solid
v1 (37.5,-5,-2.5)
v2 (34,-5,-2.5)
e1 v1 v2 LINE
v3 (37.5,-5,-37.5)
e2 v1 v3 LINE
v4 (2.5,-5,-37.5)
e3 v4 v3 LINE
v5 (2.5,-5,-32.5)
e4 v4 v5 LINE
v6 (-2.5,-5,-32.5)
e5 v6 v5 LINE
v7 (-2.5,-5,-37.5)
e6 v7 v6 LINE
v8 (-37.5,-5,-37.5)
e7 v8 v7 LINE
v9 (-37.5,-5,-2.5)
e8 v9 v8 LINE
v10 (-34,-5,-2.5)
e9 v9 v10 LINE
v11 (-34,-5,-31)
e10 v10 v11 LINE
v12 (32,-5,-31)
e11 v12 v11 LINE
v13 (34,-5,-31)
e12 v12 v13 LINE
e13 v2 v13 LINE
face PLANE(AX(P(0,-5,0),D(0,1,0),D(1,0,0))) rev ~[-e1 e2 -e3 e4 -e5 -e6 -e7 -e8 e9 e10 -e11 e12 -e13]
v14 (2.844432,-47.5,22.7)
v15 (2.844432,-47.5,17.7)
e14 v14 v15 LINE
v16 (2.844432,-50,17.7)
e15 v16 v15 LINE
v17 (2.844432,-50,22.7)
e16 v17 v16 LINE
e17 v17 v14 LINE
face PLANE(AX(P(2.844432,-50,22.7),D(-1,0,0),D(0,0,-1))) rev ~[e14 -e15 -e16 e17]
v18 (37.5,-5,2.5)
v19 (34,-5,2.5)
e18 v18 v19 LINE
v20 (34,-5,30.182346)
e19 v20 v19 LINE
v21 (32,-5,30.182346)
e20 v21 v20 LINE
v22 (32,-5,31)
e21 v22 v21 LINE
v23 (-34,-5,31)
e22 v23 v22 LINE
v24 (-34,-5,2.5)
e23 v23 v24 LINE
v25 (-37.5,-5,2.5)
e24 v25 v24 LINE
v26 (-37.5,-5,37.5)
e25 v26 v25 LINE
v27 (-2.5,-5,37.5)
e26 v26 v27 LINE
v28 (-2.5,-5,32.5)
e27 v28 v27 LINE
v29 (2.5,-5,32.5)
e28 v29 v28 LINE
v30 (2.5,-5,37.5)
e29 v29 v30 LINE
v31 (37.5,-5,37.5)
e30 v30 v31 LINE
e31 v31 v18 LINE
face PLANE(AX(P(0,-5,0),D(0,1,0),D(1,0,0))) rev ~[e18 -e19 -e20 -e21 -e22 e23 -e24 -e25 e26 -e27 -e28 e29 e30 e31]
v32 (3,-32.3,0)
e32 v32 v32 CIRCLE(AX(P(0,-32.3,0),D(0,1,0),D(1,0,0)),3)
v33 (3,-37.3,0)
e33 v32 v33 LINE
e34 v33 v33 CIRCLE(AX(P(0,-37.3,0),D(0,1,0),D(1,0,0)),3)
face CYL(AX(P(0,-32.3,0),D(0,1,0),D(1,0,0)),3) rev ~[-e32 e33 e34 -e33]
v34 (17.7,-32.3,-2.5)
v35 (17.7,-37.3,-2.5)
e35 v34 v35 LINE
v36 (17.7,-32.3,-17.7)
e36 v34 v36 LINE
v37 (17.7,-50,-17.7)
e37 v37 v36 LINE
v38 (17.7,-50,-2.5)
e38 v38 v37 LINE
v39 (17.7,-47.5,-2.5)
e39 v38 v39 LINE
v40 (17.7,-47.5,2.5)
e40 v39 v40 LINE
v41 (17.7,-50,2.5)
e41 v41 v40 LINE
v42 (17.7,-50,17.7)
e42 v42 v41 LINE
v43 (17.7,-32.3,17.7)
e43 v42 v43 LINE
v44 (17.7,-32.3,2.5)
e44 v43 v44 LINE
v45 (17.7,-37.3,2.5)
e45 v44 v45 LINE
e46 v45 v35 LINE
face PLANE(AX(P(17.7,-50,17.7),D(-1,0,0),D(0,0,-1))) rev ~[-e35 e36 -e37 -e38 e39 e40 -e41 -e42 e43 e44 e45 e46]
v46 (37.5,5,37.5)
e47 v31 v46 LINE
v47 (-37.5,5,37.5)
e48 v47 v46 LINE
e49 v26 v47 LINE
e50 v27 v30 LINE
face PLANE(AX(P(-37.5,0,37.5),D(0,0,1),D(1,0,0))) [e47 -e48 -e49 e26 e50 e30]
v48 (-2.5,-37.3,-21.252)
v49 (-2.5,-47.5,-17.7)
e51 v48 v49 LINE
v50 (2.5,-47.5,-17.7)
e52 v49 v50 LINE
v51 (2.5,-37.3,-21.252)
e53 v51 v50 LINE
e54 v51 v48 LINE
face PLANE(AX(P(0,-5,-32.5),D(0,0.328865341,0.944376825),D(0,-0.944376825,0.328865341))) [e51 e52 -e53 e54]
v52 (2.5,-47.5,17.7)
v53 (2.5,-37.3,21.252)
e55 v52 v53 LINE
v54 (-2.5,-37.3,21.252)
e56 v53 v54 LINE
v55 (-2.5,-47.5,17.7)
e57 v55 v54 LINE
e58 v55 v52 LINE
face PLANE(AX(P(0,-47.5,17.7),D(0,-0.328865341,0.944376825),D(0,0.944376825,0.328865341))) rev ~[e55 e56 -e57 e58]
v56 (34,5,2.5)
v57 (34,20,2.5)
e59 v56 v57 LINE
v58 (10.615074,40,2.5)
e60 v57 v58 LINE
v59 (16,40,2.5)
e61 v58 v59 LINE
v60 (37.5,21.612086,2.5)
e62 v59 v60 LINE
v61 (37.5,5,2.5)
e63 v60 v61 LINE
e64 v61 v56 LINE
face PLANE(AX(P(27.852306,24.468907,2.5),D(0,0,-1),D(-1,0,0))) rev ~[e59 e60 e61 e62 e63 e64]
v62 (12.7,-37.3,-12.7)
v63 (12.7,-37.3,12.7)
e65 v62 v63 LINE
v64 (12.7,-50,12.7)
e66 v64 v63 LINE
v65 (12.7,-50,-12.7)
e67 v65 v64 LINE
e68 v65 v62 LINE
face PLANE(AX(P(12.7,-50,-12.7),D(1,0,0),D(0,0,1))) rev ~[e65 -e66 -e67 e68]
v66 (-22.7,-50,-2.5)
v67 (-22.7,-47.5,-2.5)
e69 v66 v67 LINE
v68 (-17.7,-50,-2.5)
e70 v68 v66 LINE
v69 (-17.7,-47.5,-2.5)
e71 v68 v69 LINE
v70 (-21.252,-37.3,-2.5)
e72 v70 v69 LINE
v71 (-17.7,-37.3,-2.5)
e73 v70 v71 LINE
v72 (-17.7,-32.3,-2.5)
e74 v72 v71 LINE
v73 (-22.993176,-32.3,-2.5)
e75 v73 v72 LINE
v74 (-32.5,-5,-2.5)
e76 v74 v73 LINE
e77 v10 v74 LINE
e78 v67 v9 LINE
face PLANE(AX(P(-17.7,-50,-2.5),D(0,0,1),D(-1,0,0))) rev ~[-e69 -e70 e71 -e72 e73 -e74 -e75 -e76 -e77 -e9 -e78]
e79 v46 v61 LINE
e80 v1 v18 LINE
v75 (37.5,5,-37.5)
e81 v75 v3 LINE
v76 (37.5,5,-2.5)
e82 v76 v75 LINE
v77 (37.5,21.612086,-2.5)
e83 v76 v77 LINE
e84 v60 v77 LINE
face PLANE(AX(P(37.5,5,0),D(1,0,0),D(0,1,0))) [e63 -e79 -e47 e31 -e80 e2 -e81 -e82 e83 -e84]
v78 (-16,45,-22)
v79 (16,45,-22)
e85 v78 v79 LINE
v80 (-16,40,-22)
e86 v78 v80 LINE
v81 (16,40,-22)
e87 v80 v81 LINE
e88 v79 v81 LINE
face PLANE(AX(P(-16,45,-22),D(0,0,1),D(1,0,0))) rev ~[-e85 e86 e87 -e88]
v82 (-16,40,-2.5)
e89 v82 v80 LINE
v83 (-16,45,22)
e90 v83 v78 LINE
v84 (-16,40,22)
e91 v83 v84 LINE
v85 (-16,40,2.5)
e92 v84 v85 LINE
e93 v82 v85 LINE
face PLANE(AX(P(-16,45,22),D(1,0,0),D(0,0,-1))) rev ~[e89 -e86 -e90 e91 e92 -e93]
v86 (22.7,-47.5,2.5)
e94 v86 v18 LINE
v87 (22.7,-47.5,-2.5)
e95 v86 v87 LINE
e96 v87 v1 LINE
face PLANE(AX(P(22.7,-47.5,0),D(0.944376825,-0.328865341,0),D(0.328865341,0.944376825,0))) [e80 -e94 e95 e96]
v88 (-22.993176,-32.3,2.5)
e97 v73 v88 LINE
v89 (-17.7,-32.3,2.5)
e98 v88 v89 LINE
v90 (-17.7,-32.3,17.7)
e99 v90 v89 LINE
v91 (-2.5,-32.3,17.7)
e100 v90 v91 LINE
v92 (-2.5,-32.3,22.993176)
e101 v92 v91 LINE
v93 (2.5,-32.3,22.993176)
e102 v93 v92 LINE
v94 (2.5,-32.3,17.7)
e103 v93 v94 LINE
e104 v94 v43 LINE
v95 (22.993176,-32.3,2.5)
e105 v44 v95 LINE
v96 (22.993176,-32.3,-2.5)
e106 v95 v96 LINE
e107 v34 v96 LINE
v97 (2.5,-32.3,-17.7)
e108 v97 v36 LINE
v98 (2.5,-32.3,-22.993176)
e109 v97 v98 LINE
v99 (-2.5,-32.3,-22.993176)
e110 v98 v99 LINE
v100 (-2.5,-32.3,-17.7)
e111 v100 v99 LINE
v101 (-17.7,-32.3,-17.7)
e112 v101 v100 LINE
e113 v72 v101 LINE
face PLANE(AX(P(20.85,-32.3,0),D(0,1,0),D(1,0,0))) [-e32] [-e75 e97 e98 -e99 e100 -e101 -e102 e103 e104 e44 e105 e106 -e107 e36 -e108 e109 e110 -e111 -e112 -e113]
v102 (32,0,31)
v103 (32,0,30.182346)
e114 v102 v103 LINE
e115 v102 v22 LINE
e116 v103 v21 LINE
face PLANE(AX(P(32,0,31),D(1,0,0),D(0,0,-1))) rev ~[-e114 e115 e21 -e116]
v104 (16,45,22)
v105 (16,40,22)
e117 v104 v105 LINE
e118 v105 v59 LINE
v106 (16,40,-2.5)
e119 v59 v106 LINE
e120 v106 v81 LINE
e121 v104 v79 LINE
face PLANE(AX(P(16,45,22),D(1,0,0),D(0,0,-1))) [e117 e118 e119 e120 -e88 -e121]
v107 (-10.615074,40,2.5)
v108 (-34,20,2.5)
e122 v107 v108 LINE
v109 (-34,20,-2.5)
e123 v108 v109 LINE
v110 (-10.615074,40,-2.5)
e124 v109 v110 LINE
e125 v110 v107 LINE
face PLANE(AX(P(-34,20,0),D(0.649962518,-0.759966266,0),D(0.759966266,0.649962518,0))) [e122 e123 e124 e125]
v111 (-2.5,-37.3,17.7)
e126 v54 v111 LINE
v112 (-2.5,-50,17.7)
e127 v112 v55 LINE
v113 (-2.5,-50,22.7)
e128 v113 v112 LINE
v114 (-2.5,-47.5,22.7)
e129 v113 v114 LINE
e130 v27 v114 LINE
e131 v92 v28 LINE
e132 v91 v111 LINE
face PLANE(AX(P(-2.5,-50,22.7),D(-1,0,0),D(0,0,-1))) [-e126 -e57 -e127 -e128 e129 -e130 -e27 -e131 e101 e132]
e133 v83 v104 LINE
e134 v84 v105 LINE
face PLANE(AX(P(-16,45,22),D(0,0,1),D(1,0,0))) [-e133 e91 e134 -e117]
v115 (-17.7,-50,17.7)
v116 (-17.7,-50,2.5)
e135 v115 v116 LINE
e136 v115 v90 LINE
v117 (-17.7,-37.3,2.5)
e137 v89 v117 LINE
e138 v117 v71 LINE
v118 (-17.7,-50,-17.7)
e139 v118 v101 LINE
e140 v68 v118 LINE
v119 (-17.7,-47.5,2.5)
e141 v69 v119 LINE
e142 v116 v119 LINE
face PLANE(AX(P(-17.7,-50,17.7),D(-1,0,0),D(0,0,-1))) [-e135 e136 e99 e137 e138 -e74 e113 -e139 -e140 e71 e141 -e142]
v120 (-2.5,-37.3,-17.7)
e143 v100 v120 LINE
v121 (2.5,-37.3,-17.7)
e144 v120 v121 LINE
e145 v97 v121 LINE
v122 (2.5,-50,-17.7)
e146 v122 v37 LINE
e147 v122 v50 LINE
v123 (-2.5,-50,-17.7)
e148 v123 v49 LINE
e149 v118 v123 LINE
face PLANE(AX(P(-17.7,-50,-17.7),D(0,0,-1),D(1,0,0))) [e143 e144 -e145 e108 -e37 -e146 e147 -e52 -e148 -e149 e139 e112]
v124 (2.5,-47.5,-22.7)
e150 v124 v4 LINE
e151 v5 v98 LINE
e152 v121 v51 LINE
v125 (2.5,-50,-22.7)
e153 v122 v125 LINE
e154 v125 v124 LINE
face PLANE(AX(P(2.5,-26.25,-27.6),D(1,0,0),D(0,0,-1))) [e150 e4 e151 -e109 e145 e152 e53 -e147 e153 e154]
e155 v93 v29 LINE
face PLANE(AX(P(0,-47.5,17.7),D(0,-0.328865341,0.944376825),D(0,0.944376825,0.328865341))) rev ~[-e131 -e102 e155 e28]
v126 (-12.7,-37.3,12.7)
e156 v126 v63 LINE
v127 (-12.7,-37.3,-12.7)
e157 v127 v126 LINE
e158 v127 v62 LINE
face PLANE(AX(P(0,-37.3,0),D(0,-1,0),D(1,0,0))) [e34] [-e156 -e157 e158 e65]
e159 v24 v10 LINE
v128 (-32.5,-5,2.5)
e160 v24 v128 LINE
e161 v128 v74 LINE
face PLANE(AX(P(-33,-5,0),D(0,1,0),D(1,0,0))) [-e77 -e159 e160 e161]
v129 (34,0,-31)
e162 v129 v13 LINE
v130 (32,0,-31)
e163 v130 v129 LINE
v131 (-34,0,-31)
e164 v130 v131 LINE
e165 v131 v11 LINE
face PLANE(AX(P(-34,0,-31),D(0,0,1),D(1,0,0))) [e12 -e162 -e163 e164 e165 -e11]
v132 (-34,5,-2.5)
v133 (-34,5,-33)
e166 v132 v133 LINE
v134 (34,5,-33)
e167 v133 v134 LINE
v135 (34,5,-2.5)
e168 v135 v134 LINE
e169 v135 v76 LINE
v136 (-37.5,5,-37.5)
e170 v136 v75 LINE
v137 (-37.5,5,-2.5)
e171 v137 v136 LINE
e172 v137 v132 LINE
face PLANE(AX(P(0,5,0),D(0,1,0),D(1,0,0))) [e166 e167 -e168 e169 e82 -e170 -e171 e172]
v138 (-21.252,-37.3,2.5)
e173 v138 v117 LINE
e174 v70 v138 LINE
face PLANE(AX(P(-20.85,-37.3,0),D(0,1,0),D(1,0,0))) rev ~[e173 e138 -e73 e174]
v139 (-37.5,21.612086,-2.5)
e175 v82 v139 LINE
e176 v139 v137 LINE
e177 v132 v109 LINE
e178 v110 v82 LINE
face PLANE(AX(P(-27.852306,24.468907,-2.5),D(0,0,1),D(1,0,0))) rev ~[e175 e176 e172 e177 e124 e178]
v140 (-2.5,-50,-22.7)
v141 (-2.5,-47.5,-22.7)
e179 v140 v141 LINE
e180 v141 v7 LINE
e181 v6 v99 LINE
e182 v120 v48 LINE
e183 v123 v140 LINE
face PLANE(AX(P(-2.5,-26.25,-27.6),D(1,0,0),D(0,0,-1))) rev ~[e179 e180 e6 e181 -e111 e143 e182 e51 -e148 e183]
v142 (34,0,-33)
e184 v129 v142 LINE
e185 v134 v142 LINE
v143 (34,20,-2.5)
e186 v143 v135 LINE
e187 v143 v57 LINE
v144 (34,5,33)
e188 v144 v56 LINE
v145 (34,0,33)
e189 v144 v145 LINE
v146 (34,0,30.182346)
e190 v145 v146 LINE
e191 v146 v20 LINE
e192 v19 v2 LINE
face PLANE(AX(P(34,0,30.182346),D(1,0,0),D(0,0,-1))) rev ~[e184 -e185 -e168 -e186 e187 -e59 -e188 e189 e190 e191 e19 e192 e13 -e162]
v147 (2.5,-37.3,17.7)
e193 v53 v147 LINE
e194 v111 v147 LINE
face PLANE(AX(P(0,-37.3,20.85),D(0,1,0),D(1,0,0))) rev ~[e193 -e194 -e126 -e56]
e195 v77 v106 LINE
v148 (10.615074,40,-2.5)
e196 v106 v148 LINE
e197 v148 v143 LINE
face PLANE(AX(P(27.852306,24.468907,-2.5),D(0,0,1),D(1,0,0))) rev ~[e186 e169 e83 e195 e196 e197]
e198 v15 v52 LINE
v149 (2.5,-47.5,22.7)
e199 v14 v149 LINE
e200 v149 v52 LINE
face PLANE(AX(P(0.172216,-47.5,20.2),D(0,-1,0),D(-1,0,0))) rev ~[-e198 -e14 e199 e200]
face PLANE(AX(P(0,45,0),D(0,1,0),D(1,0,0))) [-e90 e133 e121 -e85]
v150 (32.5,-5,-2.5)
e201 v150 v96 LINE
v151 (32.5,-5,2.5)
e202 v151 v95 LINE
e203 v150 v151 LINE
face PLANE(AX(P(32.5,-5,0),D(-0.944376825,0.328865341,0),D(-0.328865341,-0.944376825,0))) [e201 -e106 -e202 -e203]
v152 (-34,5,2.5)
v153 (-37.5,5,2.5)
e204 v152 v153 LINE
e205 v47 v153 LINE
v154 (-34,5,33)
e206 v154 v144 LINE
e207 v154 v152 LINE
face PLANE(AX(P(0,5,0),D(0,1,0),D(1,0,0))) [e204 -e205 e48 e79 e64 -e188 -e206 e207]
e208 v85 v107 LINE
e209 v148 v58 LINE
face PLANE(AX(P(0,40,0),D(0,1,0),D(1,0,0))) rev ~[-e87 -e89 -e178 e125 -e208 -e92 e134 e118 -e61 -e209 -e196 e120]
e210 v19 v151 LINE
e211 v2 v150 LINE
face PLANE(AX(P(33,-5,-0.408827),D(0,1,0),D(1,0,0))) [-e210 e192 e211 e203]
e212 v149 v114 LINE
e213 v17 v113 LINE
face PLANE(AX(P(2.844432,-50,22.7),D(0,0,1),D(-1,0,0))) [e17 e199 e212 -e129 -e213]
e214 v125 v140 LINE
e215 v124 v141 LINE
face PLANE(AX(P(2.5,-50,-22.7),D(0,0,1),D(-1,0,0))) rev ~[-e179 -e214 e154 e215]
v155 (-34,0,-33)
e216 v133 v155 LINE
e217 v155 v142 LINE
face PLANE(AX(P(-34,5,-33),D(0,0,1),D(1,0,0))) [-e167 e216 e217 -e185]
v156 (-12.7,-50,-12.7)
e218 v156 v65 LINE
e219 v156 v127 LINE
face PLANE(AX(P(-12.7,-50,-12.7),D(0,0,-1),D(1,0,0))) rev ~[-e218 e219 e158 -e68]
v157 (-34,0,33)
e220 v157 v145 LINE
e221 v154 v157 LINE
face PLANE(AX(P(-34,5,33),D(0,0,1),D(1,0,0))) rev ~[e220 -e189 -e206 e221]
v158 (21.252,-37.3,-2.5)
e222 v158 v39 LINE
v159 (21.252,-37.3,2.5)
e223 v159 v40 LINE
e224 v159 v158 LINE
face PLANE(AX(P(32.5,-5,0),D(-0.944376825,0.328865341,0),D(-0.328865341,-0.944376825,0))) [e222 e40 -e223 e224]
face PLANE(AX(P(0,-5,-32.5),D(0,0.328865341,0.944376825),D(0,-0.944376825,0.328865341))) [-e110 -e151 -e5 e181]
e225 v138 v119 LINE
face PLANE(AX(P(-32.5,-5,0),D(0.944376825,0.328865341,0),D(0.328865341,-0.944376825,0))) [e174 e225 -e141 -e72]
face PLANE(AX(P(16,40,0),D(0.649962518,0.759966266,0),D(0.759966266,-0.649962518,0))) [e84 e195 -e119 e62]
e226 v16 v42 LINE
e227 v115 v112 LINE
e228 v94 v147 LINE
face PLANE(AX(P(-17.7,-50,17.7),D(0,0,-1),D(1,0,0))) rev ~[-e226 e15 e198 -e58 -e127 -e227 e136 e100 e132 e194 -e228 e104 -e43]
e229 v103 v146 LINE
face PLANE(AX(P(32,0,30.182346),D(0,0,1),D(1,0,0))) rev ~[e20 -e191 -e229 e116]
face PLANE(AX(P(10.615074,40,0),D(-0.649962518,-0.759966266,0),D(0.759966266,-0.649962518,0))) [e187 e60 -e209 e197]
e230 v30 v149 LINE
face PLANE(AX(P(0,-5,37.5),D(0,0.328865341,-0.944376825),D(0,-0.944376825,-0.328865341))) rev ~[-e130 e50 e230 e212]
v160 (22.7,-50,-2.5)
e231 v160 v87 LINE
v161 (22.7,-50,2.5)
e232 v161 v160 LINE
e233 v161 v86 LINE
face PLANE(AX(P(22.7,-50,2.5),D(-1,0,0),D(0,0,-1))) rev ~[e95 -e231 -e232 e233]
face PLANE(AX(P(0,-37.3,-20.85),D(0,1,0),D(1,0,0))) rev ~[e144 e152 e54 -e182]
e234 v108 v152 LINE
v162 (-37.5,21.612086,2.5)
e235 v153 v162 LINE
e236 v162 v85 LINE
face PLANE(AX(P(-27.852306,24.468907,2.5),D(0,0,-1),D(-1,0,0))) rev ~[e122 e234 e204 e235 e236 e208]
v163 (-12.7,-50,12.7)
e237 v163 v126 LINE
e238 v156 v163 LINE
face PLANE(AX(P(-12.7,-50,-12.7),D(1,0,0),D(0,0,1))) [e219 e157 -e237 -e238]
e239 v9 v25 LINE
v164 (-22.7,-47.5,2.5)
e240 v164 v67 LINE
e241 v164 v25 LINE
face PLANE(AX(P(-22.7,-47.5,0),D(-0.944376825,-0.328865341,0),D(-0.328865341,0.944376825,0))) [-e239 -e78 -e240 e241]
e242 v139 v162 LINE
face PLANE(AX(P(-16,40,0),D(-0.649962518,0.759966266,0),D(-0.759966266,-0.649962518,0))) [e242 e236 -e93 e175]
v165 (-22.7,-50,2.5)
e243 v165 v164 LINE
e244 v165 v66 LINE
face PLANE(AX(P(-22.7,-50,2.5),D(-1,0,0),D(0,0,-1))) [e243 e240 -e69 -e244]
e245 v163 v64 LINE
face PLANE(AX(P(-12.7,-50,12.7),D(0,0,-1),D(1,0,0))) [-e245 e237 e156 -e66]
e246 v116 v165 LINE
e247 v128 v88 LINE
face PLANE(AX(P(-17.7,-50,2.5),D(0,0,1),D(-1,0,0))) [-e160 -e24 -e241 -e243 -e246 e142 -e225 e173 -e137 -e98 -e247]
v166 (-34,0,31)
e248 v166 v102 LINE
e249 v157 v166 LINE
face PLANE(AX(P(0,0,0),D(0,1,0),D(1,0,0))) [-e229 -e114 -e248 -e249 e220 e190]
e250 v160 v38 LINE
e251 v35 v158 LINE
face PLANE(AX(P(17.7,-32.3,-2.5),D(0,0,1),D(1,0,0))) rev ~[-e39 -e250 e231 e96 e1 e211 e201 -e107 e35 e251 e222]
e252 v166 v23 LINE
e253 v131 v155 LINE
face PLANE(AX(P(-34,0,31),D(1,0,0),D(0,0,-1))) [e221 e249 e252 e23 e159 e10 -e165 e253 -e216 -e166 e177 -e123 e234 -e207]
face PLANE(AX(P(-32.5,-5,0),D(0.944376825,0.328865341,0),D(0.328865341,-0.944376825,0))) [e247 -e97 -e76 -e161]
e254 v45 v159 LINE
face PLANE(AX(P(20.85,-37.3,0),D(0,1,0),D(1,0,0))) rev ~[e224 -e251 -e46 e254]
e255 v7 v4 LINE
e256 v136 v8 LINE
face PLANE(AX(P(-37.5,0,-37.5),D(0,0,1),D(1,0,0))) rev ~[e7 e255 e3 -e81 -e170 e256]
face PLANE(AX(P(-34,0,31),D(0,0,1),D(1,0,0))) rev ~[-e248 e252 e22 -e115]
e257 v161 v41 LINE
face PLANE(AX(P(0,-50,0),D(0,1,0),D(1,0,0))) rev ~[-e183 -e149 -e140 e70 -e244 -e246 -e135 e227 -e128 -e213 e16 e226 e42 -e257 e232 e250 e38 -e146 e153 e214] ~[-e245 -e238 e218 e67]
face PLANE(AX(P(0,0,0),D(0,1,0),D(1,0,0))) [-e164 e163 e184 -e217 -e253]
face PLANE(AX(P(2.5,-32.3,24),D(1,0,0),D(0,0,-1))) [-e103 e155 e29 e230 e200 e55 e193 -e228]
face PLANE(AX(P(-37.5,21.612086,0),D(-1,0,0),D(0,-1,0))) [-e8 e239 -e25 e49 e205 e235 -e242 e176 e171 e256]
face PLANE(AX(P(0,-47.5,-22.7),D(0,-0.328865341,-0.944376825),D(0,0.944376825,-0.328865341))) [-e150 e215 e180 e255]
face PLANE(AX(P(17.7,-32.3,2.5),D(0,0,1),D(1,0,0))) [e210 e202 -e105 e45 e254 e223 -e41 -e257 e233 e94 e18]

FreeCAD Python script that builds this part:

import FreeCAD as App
import Part
import Sketcher

V = App.Vector
Q = App.Units.Quantity


def add_polygon(sketch, points):
    """Adds a closed chain of lines whose ends are joined by coincident constraints."""
    first, n = sketch.GeometryCount, len(points)
    for a, b in zip(points, points[1:] + points[:1]):
        sketch.addGeometry(Part.LineSegment(App.Vector(*a, 0), App.Vector(*b, 0)), False)
    for i in range(n):
        sketch.addConstraint(Sketcher.Constraint("Coincident", first + i, 2, first + (i + 1) % n, 1))

doc = App.newDocument("Part")
body = doc.addObject("PartDesign::Body", "Body")

sketch1 = body.newObject("Sketcher::SketchObject", "Sketch")
sketch1.AttachmentSupport = (doc.getObject("XZ_Plane"), [""])
sketch1.MapMode = "FlatFace"
add_polygon(sketch1, [(-37.5, -37.5), (-37.5, 37.5), (37.5, 37.5), (37.5, -37.5)])
sketch1.addConstraint(Sketcher.Constraint("Vertical", 0))
sketch1.addConstraint(Sketcher.Constraint("Horizontal", 1))
sketch1.addConstraint(Sketcher.Constraint("Vertical", 2))
sketch1.addConstraint(Sketcher.Constraint("Horizontal", 3))
sketch1.addConstraint(Sketcher.Constraint("Symmetric", 0, 2, 2, 2, -1, 1))
sketch1.addConstraint(Sketcher.Constraint("Equal", 3, 0))
sketch1.addConstraint(Sketcher.Constraint("DistanceX", 1, 1, 1, 2, Q("75 mm")))
pad1 = body.newObject("PartDesign::Pad", "Pad")
pad1.Profile = sketch1
pad1.Length = 5
pad1.Reversed = True

sketch2 = body.newObject("Sketcher::SketchObject", "Sketch001")
sketch2.AttachmentSupport = (doc.getObject("XZ_Plane"), [""])
sketch2.MapMode = "FlatFace"
add_polygon(sketch2, [(-37.5, -37.5), (-37.5, 37.5), (37.5, 37.5), (37.5, -37.5)])
sketch2.addConstraint(Sketcher.Constraint("Vertical", 0))
sketch2.addConstraint(Sketcher.Constraint("Horizontal", 1))
sketch2.addConstraint(Sketcher.Constraint("Vertical", 2))
sketch2.addConstraint(Sketcher.Constraint("Horizontal", 3))
sketch2.addConstraint(Sketcher.Constraint("Symmetric", 0, 2, 2, 2, -1, 1))
sketch2.addConstraint(Sketcher.Constraint("Equal", 3, 0))
sketch2.addConstraint(Sketcher.Constraint("DistanceX", 1, 1, 1, 2, Q("75 mm")))
pad2 = body.newObject("PartDesign::Pad", "Pad001")
pad2.Profile = sketch2
pad2.Length = 5

sketch3 = body.newObject("Sketcher::SketchObject", "Sketch002")
sketch3.AttachmentSupport = (doc.getObject("XZ_Plane"), [""])
sketch3.MapMode = "FlatFace"
sketch3.AttachmentOffset = App.Placement(V(0, 0, -5), App.Rotation())
add_polygon(sketch3, [(-34, -33), (-34, 33), (34, 33), (34, -33)])
sketch3.addConstraint(Sketcher.Constraint("Vertical", 0))
sketch3.addConstraint(Sketcher.Constraint("Horizontal", 1))
sketch3.addConstraint(Sketcher.Constraint("Vertical", 2))
sketch3.addConstraint(Sketcher.Constraint("Horizontal", 3))
sketch3.addConstraint(Sketcher.Constraint("Symmetric", 0, 2, 2, 2, -1, 1))
sketch3.addConstraint(Sketcher.Constraint("DistanceX", 1, 1, 1, 2, Q("68 mm")))
sketch3.addConstraint(Sketcher.Constraint("DistanceY", 0, 1, 0, 2, Q("66 mm")))
pocket1 = body.newObject("PartDesign::Pocket", "Pocket")
pocket1.Profile = sketch3
pocket1.Length = 5
pocket1.Reversed = True

sketch4 = body.newObject("Sketcher::SketchObject", "Sketch003")
sketch4.AttachmentSupport = (doc.getObject("XZ_Plane"), [""])
sketch4.MapMode = "FlatFace"
add_polygon(sketch4, [(-32, -31), (-32, 31), (32, 31), (32, -31)])
sketch4.addConstraint(Sketcher.Constraint("Vertical", 0))
sketch4.addConstraint(Sketcher.Constraint("Horizontal", 1))
sketch4.addConstraint(Sketcher.Constraint("Vertical", 2))
sketch4.addConstraint(Sketcher.Constraint("Horizontal", 3))
sketch4.addConstraint(Sketcher.Constraint("Symmetric", 0, 2, 2, 2, -1, 1))
sketch4.addConstraint(Sketcher.Constraint("DistanceX", 1, 1, 1, 2, Q("64 mm")))
sketch4.addConstraint(Sketcher.Constraint("DistanceY", 0, 1, 0, 2, Q("62 mm")))
pocket2 = body.newObject("PartDesign::Pocket", "Pocket001")
pocket2.Profile = sketch4
pocket2.Length = 5
pocket2.Reversed = True
body2 = doc.addObject("PartDesign::Body", "Body001")

sketch5 = body2.newObject("Sketcher::SketchObject", "Sketch004")
sketch5.AttachmentSupport = (doc.getObject("XZ_Plane001"), [""])
sketch5.MapMode = "FlatFace"
sketch5.AttachmentOffset = App.Placement(V(0, 0, 50), App.Rotation())
add_polygon(sketch5, [(-17.7, -17.7), (-17.7, 17.7), (17.7, 17.7), (17.7, -17.7)])
sketch5.addConstraint(Sketcher.Constraint("Vertical", 0))
sketch5.addConstraint(Sketcher.Constraint("Horizontal", 1))
sketch5.addConstraint(Sketcher.Constraint("Vertical", 2))
sketch5.addConstraint(Sketcher.Constraint("Horizontal", 3))
sketch5.addConstraint(Sketcher.Constraint("Symmetric", 0, 2, 2, 2, -1, 1))
sketch5.addConstraint(Sketcher.Constraint("Equal", 3, 0))
sketch5.addConstraint(Sketcher.Constraint("DistanceX", 1, 1, 1, 2, Q("35.4 mm")))
pad3 = body2.newObject("PartDesign::Pad", "Pad002")
pad3.Profile = sketch5
pad3.Length = 17.7
pad3.Reversed = True

sketch6 = body2.newObject("Sketcher::SketchObject", "Sketch005")
sketch6.AttachmentSupport = (doc.getObject("XZ_Plane001"), [""])
sketch6.MapMode = "FlatFace"
sketch6.AttachmentOffset = App.Placement(V(0, 0, 50), App.Rotation())
add_polygon(sketch6, [(-12.7, 12.7), (-12.7, -12.7), (12.7, -12.7), (12.7, 12.7)])
sketch6.addConstraint(Sketcher.Constraint("Vertical", 0))
sketch6.addConstraint(Sketcher.Constraint("Horizontal", 1))
sketch6.addConstraint(Sketcher.Constraint("Vertical", 2))
sketch6.addConstraint(Sketcher.Constraint("Horizontal", 3))
sketch6.addConstraint(Sketcher.Constraint("Symmetric", 0, 2, 2, 2, -1, 1))
sketch6.addConstraint(Sketcher.Constraint("Equal", 3, 0))
sketch6.addConstraint(Sketcher.Constraint("DistanceX", 1, 1, 1, 2, Q("25.4 mm")))
pocket3 = body2.newObject("PartDesign::Pocket", "Pocket002")
pocket3.Profile = sketch6
pocket3.Length = 12.7

sketch7 = body2.newObject("Sketcher::SketchObject", "Sketch006")
sketch7.AttachmentSupport = (doc.getObject("XZ_Plane001"), [""])
sketch7.MapMode = "FlatFace"
sketch7.AttachmentOffset = App.Placement(V(0, 0, 32.3), App.Rotation())
sketch7.addGeometry(Part.Circle(V(0, 0, 0), V(0, 0, 1), 3), False)
sketch7.addConstraint(Sketcher.Constraint("Coincident", 0, 3, -1, 1))
sketch7.addConstraint(Sketcher.Constraint("Diameter", 0, Q("6 mm")))
pocket4 = body2.newObject("PartDesign::Pocket", "Pocket003")
pocket4.Profile = sketch7
pocket4.Length = 5
pocket4.Reversed = True

sketch8 = body2.newObject("Sketcher::SketchObject", "Sketch007")
sketch8.AttachmentSupport = (doc.getObject("XZ_Plane001"), [""])
sketch8.MapMode = "FlatFace"
sketch8.AttachmentOffset = App.Placement(V(0, 0, 50), App.Rotation())
add_polygon(sketch8, [(22.7, -2.5), (22.7, 2.5), (17.7, 2.5), (17.7, -2.5)])
add_polygon(sketch8, [(-17.7, -2.5), (-17.7, 2.5), (-22.7, 2.5), (-22.7, -2.5)])
add_polygon(sketch8, [(2.844432, 17.7), (2.844432, 22.7), (-2.5, 22.7), (-2.5, 17.7)])
add_polygon(sketch8, [(2.5, -22.7), (2.5, -17.7), (-2.5, -17.7), (-2.5, -22.7)])
sketch8.addConstraint(Sketcher.Constraint("Vertical", 0))
sketch8.addConstraint(Sketcher.Constraint("Horizontal", 1))
sketch8.addConstraint(Sketcher.Constraint("Vertical", 2))
sketch8.addConstraint(Sketcher.Constraint("Horizontal", 3))
sketch8.addConstraint(Sketcher.Constraint("Vertical", 4))
sketch8.addConstraint(Sketcher.Constraint("Horizontal", 5))
sketch8.addConstraint(Sketcher.Constraint("Vertical", 6))
sketch8.addConstraint(Sketcher.Constraint("Horizontal", 7))
sketch8.addConstraint(Sketcher.Constraint("Vertical", 8))
sketch8.addConstraint(Sketcher.Constraint("Horizontal", 9))
sketch8.addConstraint(Sketcher.Constraint("Vertical", 10))
sketch8.addConstraint(Sketcher.Constraint("Horizontal", 11))
sketch8.addConstraint(Sketcher.Constraint("Vertical", 12))
sketch8.addConstraint(Sketcher.Constraint("Horizontal", 13))
sketch8.addConstraint(Sketcher.Constraint("Vertical", 14))
sketch8.addConstraint(Sketcher.Constraint("Horizontal", 15))
sketch8.addConstraint(Sketcher.Constraint("Symmetric", 2, 2, 4, 2, -1, 1))
sketch8.addConstraint(Sketcher.Constraint("Symmetric", 0, 2, 6, 2, -1, 1))
sketch8.addConstraint(Sketcher.Constraint("Symmetric", 10, 2, 12, 2, -1, 1))
sketch8.addConstraint(Sketcher.Constraint("Symmetric", 9, 2, 14, 2, -1))
sketch8.addConstraint(Sketcher.Constraint("Horizontal", 1, 2, 4, 2))
sketch8.addConstraint(Sketcher.Constraint("Equal", 7, 13))
sketch8.addConstraint(Sketcher.Constraint("Equal", 15, 0))
sketch8.addConstraint(Sketcher.Constraint("Equal", 6, 8))
sketch8.addConstraint(Sketcher.Constraint("DistanceX", 1, 2, 1, 1, Q("5 mm")))
sketch8.addConstraint(Sketcher.Constraint("DistanceX", -1, 1, 0, 2, Q("22.7 mm")))
sketch8.addConstraint(Sketcher.Constraint("DistanceY", -1, 1, 8, 2, Q("22.7 mm")))
sketch8.addConstraint(Sketcher.Constraint("DistanceX", 9, 2, 9, 1, Q("5.344432 mm")))
pad4 = body2.newObject("PartDesign::Pad", "Pad003")
pad4.Profile = sketch8
pad4.Length = 2.5
pad4.Reversed = True
body3 = doc.addObject("PartDesign::Body", "Body002")

sketch9 = body3.newObject("Sketcher::SketchObject", "Sketch008")
sketch9.AttachmentSupport = (doc.getObject("XZ_Plane002"), [""])
sketch9.MapMode = "FlatFace"
sketch9.AttachmentOffset = App.Placement(V(0, 0, -45), App.Rotation())
add_polygon(sketch9, [(-16, -22), (-16, 22), (16, 22), (16, -22)])
sketch9.addConstraint(Sketcher.Constraint("Vertical", 0))
sketch9.addConstraint(Sketcher.Constraint("Horizontal", 1))
sketch9.addConstraint(Sketcher.Constraint("Vertical", 2))
sketch9.addConstraint(Sketcher.Constraint("Horizontal", 3))
sketch9.addConstraint(Sketcher.Constraint("Symmetric", 0, 2, 2, 2, -1, 1))
sketch9.addConstraint(Sketcher.Constraint("DistanceX", 1, 1, 1, 2, Q("32 mm")))
sketch9.addConstraint(Sketcher.Constraint("DistanceY", 0, 1, 0, 2, Q("44 mm")))
pad5 = body3.newObject("PartDesign::Pad", "Pad004")
pad5.Profile = sketch9
pad5.Length = 5
body.AllowCompound = True
doc.recompute()

boolean = body.newObject("PartDesign::Boolean", "Boolean")
boolean.Type = "Fuse"
boolean.addObjects([body3])

sketch10 = body.newObject("Sketcher::SketchObject", "Sketch009")
sketch10.AttachmentSupport = (doc.getObject("XY_Plane"), [""])
sketch10.MapMode = "FlatFace"
add_polygon(sketch10, [(-37.5, 5), (-34, 5), (-34, 20), (-10.615074, 40), (-16, 40), (-37.5, 21.612086)])
add_polygon(sketch10, [(34, 5), (37.5, 5), (37.5, 21.612086), (16, 40), (10.615074, 40), (34, 20)])
sketch10.addConstraint(Sketcher.Constraint("Horizontal", 0))
sketch10.addConstraint(Sketcher.Constraint("Vertical", 1))
sketch10.addConstraint(Sketcher.Constraint("Horizontal", 3))
sketch10.addConstraint(Sketcher.Constraint("Vertical", 5))
sketch10.addConstraint(Sketcher.Constraint("Horizontal", 6))
sketch10.addConstraint(Sketcher.Constraint("Vertical", 7))
sketch10.addConstraint(Sketcher.Constraint("Horizontal", 9))
sketch10.addConstraint(Sketcher.Constraint("Vertical", 11))
sketch10.addConstraint(Sketcher.Constraint("Symmetric", 5, 2, 6, 2, -2))
sketch10.addConstraint(Sketcher.Constraint("Symmetric", 3, 2, 8, 2, -2))
sketch10.addConstraint(Sketcher.Constraint("Symmetric", 1, 2, 10, 2, -2))
sketch10.addConstraint(Sketcher.Constraint("Parallel", 2, 4))
sketch10.addConstraint(Sketcher.Constraint("Parallel", 8, 10))
sketch10.addConstraint(Sketcher.Constraint("Horizontal", 4, 2, 7, 2))
sketch10.addConstraint(Sketcher.Constraint("DistanceY", 1, 1, 1, 2, Q("15 mm")))
sketch10.addConstraint(Sketcher.Constraint("DistanceX", 0, 1, 0, 2, Q("3.5 mm")))
sketch10.addConstraint(Sketcher.Constraint("DistanceX", 0, 2, -1, 1, Q("34 mm")))
sketch10.addConstraint(Sketcher.Constraint("DistanceY", -1, 1, 0, 2, Q("5 mm")))
sketch10.addConstraint(Sketcher.Constraint("DistanceY", -1, 1, 2, 2, Q("40 mm")))
sketch10.addConstraint(Sketcher.Constraint("DistanceX", 3, 2, -1, 1, Q("16 mm")))
sketch10.addConstraint(Sketcher.Constraint("Distance", 4, Q("28.290729 mm")))
pad6 = body.newObject("PartDesign::Pad", "Pad005")
pad6.Profile = sketch10
pad6.Length = 2.5

sketch11 = body.newObject("Sketcher::SketchObject", "Sketch010")
sketch11.AttachmentSupport = (doc.getObject("XY_Plane"), [""])
sketch11.MapMode = "FlatFace"
add_polygon(sketch11, [(-34, 20), (-10.615074, 40), (-16, 40), (-37.5, 21.612086), (-37.5, 5), (-34, 5)])
add_polygon(sketch11, [(34, 5), (37.5, 5), (37.5, 21.612086), (16, 40), (10.615074, 40), (34, 20)])
sketch11.addConstraint(Sketcher.Constraint("Horizontal", 1))
sketch11.addConstraint(Sketcher.Constraint("Vertical", 3))
sketch11.addConstraint(Sketcher.Constraint("Horizontal", 4))
sketch11.addConstraint(Sketcher.Constraint("Vertical", 5))
sketch11.addConstraint(Sketcher.Constraint("Horizontal", 6))
sketch11.addConstraint(Sketcher.Constraint("Vertical", 7))
sketch11.addConstraint(Sketcher.Constraint("Horizontal", 9))
sketch11.addConstraint(Sketcher.Constraint("Vertical", 11))
sketch11.addConstraint(Sketcher.Constraint("Symmetric", 3, 2, 6, 2, -2))
sketch11.addConstraint(Sketcher.Constraint("Symmetric", 1, 2, 8, 2, -2))
sketch11.addConstraint(Sketcher.Constraint("Symmetric", 5, 2, 10, 2, -2))
sketch11.addConstraint(Sketcher.Constraint("Parallel", 0, 2))
sketch11.addConstraint(Sketcher.Constraint("Parallel", 8, 10))
sketch11.addConstraint(Sketcher.Constraint("Horizontal", 2, 2, 7, 2))
sketch11.addConstraint(Sketcher.Constraint("DistanceY", 5, 1, 5, 2, Q("15 mm")))
sketch11.addConstraint(Sketcher.Constraint("DistanceX", 4, 1, 4, 2, Q("3.5 mm")))
sketch11.addConstraint(Sketcher.Constraint("DistanceY", -1, 1, 0, 2, Q("40 mm")))
sketch11.addConstraint(Sketcher.Constraint("DistanceX", 1, 2, -1, 1, Q("16 mm")))
sketch11.addConstraint(Sketcher.Constraint("DistanceY", -1, 1, 3, 2, Q("5 mm")))
sketch11.addConstraint(Sketcher.Constraint("DistanceX", 4, 2, -1, 1, Q("34 mm")))
sketch11.addConstraint(Sketcher.Constraint("Distance", 2, Q("28.290729 mm")))
pad7 = body.newObject("PartDesign::Pad", "Pad006")
pad7.Profile = sketch11
pad7.Length = 2.5
pad7.Reversed = True
doc.recompute()

boolean2 = body.newObject("PartDesign::Boolean", "Boolean001")
boolean2.Type = "Fuse"
boolean2.addObjects([body2])

sketch12 = body.newObject("Sketcher::SketchObject", "Sketch011")
sketch12.AttachmentSupport = (doc.getObject("XY_Plane"), [""])
sketch12.MapMode = "FlatFace"
add_polygon(sketch12, [(22.7, -47.5), (37.5, -5), (32.5, -5), (17.7, -47.5)])
add_polygon(sketch12, [(-37.5, -5), (-22.7, -47.5), (-17.7, -47.5), (-32.5, -5)])
sketch12.addConstraint(Sketcher.Constraint("Horizontal", 1))
sketch12.addConstraint(Sketcher.Constraint("Horizontal", 3))
sketch12.addConstraint(Sketcher.Constraint("Horizontal", 5))
sketch12.addConstraint(Sketcher.Constraint("Horizontal", 7))
sketch12.addConstraint(Sketcher.Constraint("Symmetric", 3, 2, 4, 2, -2))
sketch12.addConstraint(Sketcher.Constraint("Symmetric", 1, 2, 6, 2, -2))
sketch12.addConstraint(Sketcher.Constraint("Parallel", 0, 2))
sketch12.addConstraint(Sketcher.Constraint("Parallel", 4, 6))
sketch12.addConstraint(Sketcher.Constraint("Equal", 3, 5))
sketch12.addConstraint(Sketcher.Constraint("DistanceX", 1, 2, 1, 1, Q("5 mm")))
sketch12.addConstraint(Sketcher.Constraint("DistanceY", 0, 2, -1, 1, Q("5 mm")))
sketch12.addConstraint(Sketcher.Constraint("DistanceX", 6, 2, 1, 2, Q("65 mm")))
sketch12.addConstraint(Sketcher.Constraint("DistanceX", -1, 1, 2, 2, Q("17.7 mm")))
sketch12.addConstraint(Sketcher.Constraint("DistanceY", 2, 2, -1, 1, Q("47.5 mm")))
pad8 = body.newObject("PartDesign::Pad", "Pad007")
pad8.Profile = sketch12
pad8.Length = 2.5

sketch13 = body.newObject("Sketcher::SketchObject", "Sketch012")
sketch13.AttachmentSupport = (doc.getObject("XY_Plane"), [""])
sketch13.MapMode = "FlatFace"
add_polygon(sketch13, [(22.7, -47.5), (37.5, -5), (32.5, -5), (17.7, -47.5)])
add_polygon(sketch13, [(-37.5, -5), (-22.7, -47.5), (-17.7, -47.5), (-32.5, -5)])
sketch13.addConstraint(Sketcher.Constraint("Horizontal", 1))
sketch13.addConstraint(Sketcher.Constraint("Horizontal", 3))
sketch13.addConstraint(Sketcher.Constraint("Horizontal", 5))
sketch13.addConstraint(Sketcher.Constraint("Horizontal", 7))
sketch13.addConstraint(Sketcher.Constraint("Symmetric", 3, 2, 4, 2, -2))
sketch13.addConstraint(Sketcher.Constraint("Symmetric", 1, 2, 6, 2, -2))
sketch13.addConstraint(Sketcher.Constraint("Parallel", 0, 2))
sketch13.addConstraint(Sketcher.Constraint("Parallel", 4, 6))
sketch13.addConstraint(Sketcher.Constraint("Equal", 3, 5))
sketch13.addConstraint(Sketcher.Constraint("DistanceX", 1, 2, 1, 1, Q("5 mm")))
sketch13.addConstraint(Sketcher.Constraint("DistanceY", 0, 2, -1, 1, Q("5 mm")))
sketch13.addConstraint(Sketcher.Constraint("DistanceX", 6, 2, 1, 2, Q("65 mm")))
sketch13.addConstraint(Sketcher.Constraint("DistanceX", -1, 1, 2, 2, Q("17.7 mm")))
sketch13.addConstraint(Sketcher.Constraint("DistanceY", 2, 2, -1, 1, Q("47.5 mm")))
pad9 = body.newObject("PartDesign::Pad", "Pad008")
pad9.Profile = sketch13
pad9.Length = 2.5
pad9.Reversed = True

sketch14 = body.newObject("Sketcher::SketchObject", "Sketch013")
sketch14.AttachmentSupport = (doc.getObject("YZ_Plane"), [""])
sketch14.MapMode = "FlatFace"
add_polygon(sketch14, [(-47.5, -22.7), (-5, -37.5), (-5, -32.5), (-47.5, -17.7)])
add_polygon(sketch14, [(-5, 37.5), (-47.5, 22.7), (-47.5, 17.7), (-5, 32.5)])
sketch14.addConstraint(Sketcher.Constraint("Vertical", 1))
sketch14.addConstraint(Sketcher.Constraint("Vertical", 3))
sketch14.addConstraint(Sketcher.Constraint("Vertical", 5))
sketch14.addConstraint(Sketcher.Constraint("Vertical", 7))
sketch14.addConstraint(Sketcher.Constraint("Symmetric", 3, 2, 4, 2, -1))
sketch14.addConstraint(Sketcher.Constraint("Symmetric", 1, 2, 6, 2, -1))
sketch14.addConstraint(Sketcher.Constraint("Parallel", 0, 2))
sketch14.addConstraint(Sketcher.Constraint("Parallel", 4, 6))
sketch14.addConstraint(Sketcher.Constraint("Equal", 3, 5))
sketch14.addConstraint(Sketcher.Constraint("DistanceY", 1, 1, 1, 2, Q("5 mm")))
sketch14.addConstraint(Sketcher.Constraint("DistanceX", 0, 2, -1, 1, Q("5 mm")))
sketch14.addConstraint(Sketcher.Constraint("DistanceY", 1, 2, 6, 2, Q("65 mm")))
sketch14.addConstraint(Sketcher.Constraint("DistanceX", 2, 2, -1, 1, Q("47.5 mm")))
sketch14.addConstraint(Sketcher.Constraint("DistanceY", 2, 2, -1, 1, Q("17.7 mm")))
pad10 = body.newObject("PartDesign::Pad", "Pad009")
pad10.Profile = sketch14
pad10.Length = 2.5

sketch15 = body.newObject("Sketcher::SketchObject", "Sketch014")
sketch15.AttachmentSupport = (doc.getObject("YZ_Plane"), [""])
sketch15.MapMode = "FlatFace"
add_polygon(sketch15, [(-47.5, -22.7), (-5, -37.5), (-5, -32.5), (-47.5, -17.7)])
add_polygon(sketch15, [(-5, 37.5), (-47.5, 22.7), (-47.5, 17.7), (-5, 32.5)])
sketch15.addConstraint(Sketcher.Constraint("Vertical", 1))
sketch15.addConstraint(Sketcher.Constraint("Vertical", 3))
sketch15.addConstraint(Sketcher.Constraint("Vertical", 5))
sketch15.addConstraint(Sketcher.Constraint("Vertical", 7))
sketch15.addConstraint(Sketcher.Constraint("Symmetric", 3, 2, 4, 2, -1))
sketch15.addConstraint(Sketcher.Constraint("Symmetric", 1, 2, 6, 2, -1))
sketch15.addConstraint(Sketcher.Constraint("Parallel", 0, 2))
sketch15.addConstraint(Sketcher.Constraint("Parallel", 4, 6))
sketch15.addConstraint(Sketcher.Constraint("Equal", 3, 5))
sketch15.addConstraint(Sketcher.Constraint("DistanceY", 1, 1, 1, 2, Q("5 mm")))
sketch15.addConstraint(Sketcher.Constraint("DistanceX", 0, 2, -1, 1, Q("5 mm")))
sketch15.addConstraint(Sketcher.Constraint("DistanceY", 1, 2, 6, 2, Q("65 mm")))
sketch15.addConstraint(Sketcher.Constraint("DistanceX", 2, 2, -1, 1, Q("47.5 mm")))
sketch15.addConstraint(Sketcher.Constraint("DistanceY", 2, 2, -1, 1, Q("17.7 mm")))
pad11 = body.newObject("PartDesign::Pad", "Pad010")
pad11.Profile = sketch15
pad11.Length = 2.5
pad11.Reversed = True

sketch16 = body.newObject("Sketcher::SketchObject", "Sketch015")
sketch16.AttachmentSupport = (doc.getObject("XZ_Plane"), [""])
sketch16.MapMode = "FlatFace"
sketch16.AttachmentOffset = App.Placement(V(0, 0, 32.3), App.Rotation())
add_polygon(sketch16, [(17.7, -2.5), (17.7, 2.5), (24, 2.5), (24, -2.5)])
add_polygon(sketch16, [(-2.5, -24), (-2.5, -17.7), (2.5, -17.7), (2.5, -24)])
add_polygon(sketch16, [(-24, -2.5), (-24, 2.5), (-17.7, 2.5), (-17.7, -2.5)])
add_polygon(sketch16, [(-2.5, 17.7), (-2.5, 24), (2.5, 24), (2.5, 17.7)])
sketch16.addConstraint(Sketcher.Constraint("Vertical", 0))
sketch16.addConstraint(Sketcher.Constraint("Horizontal", 1))
sketch16.addConstraint(Sketcher.Constraint("Vertical", 2))
sketch16.addConstraint(Sketcher.Constraint("Horizontal", 3))
sketch16.addConstraint(Sketcher.Constraint("Vertical", 4))
sketch16.addConstraint(Sketcher.Constraint("Horizontal", 5))
sketch16.addConstraint(Sketcher.Constraint("Vertical", 6))
sketch16.addConstraint(Sketcher.Constraint("Horizontal", 7))
sketch16.addConstraint(Sketcher.Constraint("Vertical", 8))
sketch16.addConstraint(Sketcher.Constraint("Horizontal", 9))
sketch16.addConstraint(Sketcher.Constraint("Vertical", 10))
sketch16.addConstraint(Sketcher.Constraint("Horizontal", 11))
sketch16.addConstraint(Sketcher.Constraint("Vertical", 12))
sketch16.addConstraint(Sketcher.Constraint("Horizontal", 13))
sketch16.addConstraint(Sketcher.Constraint("Vertical", 14))
sketch16.addConstraint(Sketcher.Constraint("Horizontal", 15))
sketch16.addConstraint(Sketcher.Constraint("Symmetric", 2, 2, 8, 2, -1, 1))
sketch16.addConstraint(Sketcher.Constraint("Symmetric", 0, 2, 10, 2, -1, 1))
sketch16.addConstraint(Sketcher.Constraint("Symmetric", 6, 2, 12, 2, -1, 1))
sketch16.addConstraint(Sketcher.Constraint("Symmetric", 4, 2, 14, 2, -1, 1))
sketch16.addConstraint(Sketcher.Constraint("Horizontal", 1, 2, 8, 2))
sketch16.addConstraint(Sketcher.Constraint("Vertical", 7, 2, 12, 2))
sketch16.addConstraint(Sketcher.Constraint("Equal", 15, 0))
sketch16.addConstraint(Sketcher.Constraint("Equal", 11, 4))
sketch16.addConstraint(Sketcher.Constraint("DistanceX", 5, 1, 5, 2, Q("5 mm")))
sketch16.addConstraint(Sketcher.Constraint("DistanceX", 1, 1, 1, 2, Q("6.3 mm")))
sketch16.addConstraint(Sketcher.Constraint("DistanceX", -1, 1, 1, 2, Q("24 mm")))
sketch16.addConstraint(Sketcher.Constraint("DistanceY", 6, 2, -1, 1, Q("24 mm")))
pad12 = body.newObject("PartDesign::Pad", "Pad011")
pad12.Profile = sketch16
pad12.Length = 5

sketch17 = body.newObject("Sketcher::SketchObject", "Sketch016")
sketch17.AttachmentSupport = (doc.getObject("XZ_Plane"), [""])
sketch17.MapMode = "FlatFace"
add_polygon(sketch17, [(-34, -31), (-34, 31), (-32, 31), (-32, -31)])
add_polygon(sketch17, [(32, -31), (32, 30.182346), (34, 30.182346), (34, -31)])
sketch17.addConstraint(Sketcher.Constraint("Vertical", 0))
sketch17.addConstraint(Sketcher.Constraint("Horizontal", 1))
sketch17.addConstraint(Sketcher.Constraint("Vertical", 2))
sketch17.addConstraint(Sketcher.Constraint("Horizontal", 3))
sketch17.addConstraint(Sketcher.Constraint("Vertical", 4))
sketch17.addConstraint(Sketcher.Constraint("Horizontal", 5))
sketch17.addConstraint(Sketcher.Constraint("Vertical", 6))
sketch17.addConstraint(Sketcher.Constraint("Horizontal", 7))
sketch17.addConstraint(Sketcher.Constraint("Symmetric", 0, 2, 6, 2, -1, 1))
sketch17.addConstraint(Sketcher.Constraint("Symmetric", 2, 2, 7, 2, -2))
sketch17.addConstraint(Sketcher.Constraint("DistanceX", 1, 1, 1, 2, Q("2 mm")))
sketch17.addConstraint(Sketcher.Constraint("DistanceY", 0, 1, 0, 2, Q("62 mm")))
sketch17.addConstraint(Sketcher.Constraint("DistanceX", 0, 2, -1, 1, Q("34 mm")))
sketch17.addConstraint(Sketcher.Constraint("DistanceY", 4, 1, 4, 2, Q("61.182346 mm")))
pocket5 = body.newObject("PartDesign::Pocket", "Pocket004")
pocket5.Profile = sketch17
pocket5.Length = 5
pocket5.Reversed = True

doc.recompute()
